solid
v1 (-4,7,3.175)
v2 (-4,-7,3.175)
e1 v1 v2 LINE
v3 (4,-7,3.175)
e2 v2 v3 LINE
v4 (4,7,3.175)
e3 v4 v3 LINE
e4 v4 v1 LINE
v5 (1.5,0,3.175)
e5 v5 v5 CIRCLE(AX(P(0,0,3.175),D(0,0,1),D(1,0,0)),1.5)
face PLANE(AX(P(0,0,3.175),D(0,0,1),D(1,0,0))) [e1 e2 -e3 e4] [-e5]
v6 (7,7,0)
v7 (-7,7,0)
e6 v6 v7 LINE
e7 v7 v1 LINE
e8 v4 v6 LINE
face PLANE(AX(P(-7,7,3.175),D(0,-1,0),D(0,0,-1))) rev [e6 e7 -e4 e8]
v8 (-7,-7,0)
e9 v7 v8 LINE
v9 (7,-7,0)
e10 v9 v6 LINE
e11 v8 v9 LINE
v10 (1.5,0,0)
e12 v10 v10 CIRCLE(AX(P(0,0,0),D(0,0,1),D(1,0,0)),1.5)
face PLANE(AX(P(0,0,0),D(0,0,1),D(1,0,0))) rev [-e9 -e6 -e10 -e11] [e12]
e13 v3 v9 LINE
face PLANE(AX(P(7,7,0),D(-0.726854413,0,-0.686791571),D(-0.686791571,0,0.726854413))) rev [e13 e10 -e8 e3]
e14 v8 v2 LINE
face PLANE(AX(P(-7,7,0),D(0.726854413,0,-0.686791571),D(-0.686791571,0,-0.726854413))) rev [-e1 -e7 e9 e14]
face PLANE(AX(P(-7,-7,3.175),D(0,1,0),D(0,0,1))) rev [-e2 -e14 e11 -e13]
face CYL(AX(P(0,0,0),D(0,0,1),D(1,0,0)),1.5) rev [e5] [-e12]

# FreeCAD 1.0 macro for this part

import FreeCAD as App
import Part
import Sketcher
from FreeCAD import Vector


def add_polygon(sketch, points):
    """Adds a closed chain of lines whose ends are joined by coincident constraints."""
    first, n = sketch.GeometryCount, len(points)
    for a, b in zip(points, points[1:] + points[:1]):
        sketch.addGeometry(Part.LineSegment(App.Vector(*a, 0), App.Vector(*b, 0)), False)
    for i in range(n):
        sketch.addConstraint(Sketcher.Constraint("Coincident", first + i, 2, first + (i + 1) % n, 1))

doc = App.newDocument("Part")
params = doc.addObject("Spreadsheet::Sheet", "Params")
for row, (alias, value) in enumerate([
    ("sketch1_width", "14 mm"),
    ("pad1_length", "3.175 mm"),
    ("sketch2_width", "3 mm"),
    ("sketch3_diameter", "3 mm"),
], start=1):
    params.set(f"A{row}", alias)
    params.set(f"B{row}", "=" + value)
    params.setAlias(f"B{row}", alias)

body = doc.addObject("PartDesign::Body", "Body")

# Sketch on XY plane
sketch1 = body.newObject("Sketcher::SketchObject", "Sketch")
sketch1.AttachmentSupport = (doc.getObject("XY_Plane"), [""])
sketch1.MapMode = "FlatFace"
add_polygon(sketch1, [(-7, 7), (-7, -7), (7, -7), (7, 7)])  # lines 0-3
sketch1.addConstraint([
    Sketcher.Constraint("Vertical", 0),
    Sketcher.Constraint("Horizontal", 1),
    Sketcher.Constraint("Vertical", 2),
    Sketcher.Constraint("Horizontal", 3),
    Sketcher.Constraint("Symmetric", 0, 2, 2, 2, -1, 1),
    Sketcher.Constraint("Equal", 3, 0),
    Sketcher.Constraint("DistanceX", 1, 1, 1, 2, 14.0),
])
sketch1.setExpression("Constraints[10]", "Params.sketch1_width")
pad1 = body.newObject("PartDesign::Pad", "Pad")
pad1.Profile = sketch1
pad1.setExpression("Length", "Params.pad1_length")

# Sketch on XZ plane
sketch2 = body.newObject("Sketcher::SketchObject", "Sketch001")
sketch2.AttachmentSupport = (doc.getObject("XZ_Plane"), [""])
sketch2.MapMode = "FlatFace"
sketch2.AttachmentOffset = App.Placement(Vector(0, 0, 7), App.Rotation())
add_polygon(sketch2, [(-4, 3.2), (-7, 3.2), (-7, 0)])  # lines 0-2
add_polygon(sketch2, [(7, 3.2), (4, 3.2), (7, 0)])  # lines 3-5
sketch2.addConstraint([
    Sketcher.Constraint("Horizontal", 0),
    Sketcher.Constraint("Vertical", 1),
    Sketcher.Constraint("Horizontal", 3),
    Sketcher.Constraint("Vertical", 5),
    Sketcher.Constraint("Symmetric", 1, 2, 4, 2, -1, 1),
    Sketcher.Constraint("Symmetric", 2, 2, 3, 2, -2),
    Sketcher.Constraint("PointOnObject", 1, 2, -1),
    Sketcher.Constraint("DistanceX", 0, 2, 0, 1, 3.0),
    Sketcher.Constraint("DistanceX", 0, 2, -1, 1, 7.0),
    Sketcher.Constraint("DistanceY", 1, 2, 1, 1, 3.175),
])
sketch2.setExpression("Constraints[13]", "Params.sketch2_width")
pocket1 = body.newObject("PartDesign::Pocket", "Pocket")
pocket1.Profile = sketch2
pocket1.Type = "ThroughAll"

# Sketch on XY plane
sketch3 = body.newObject("Sketcher::SketchObject", "Sketch002")
sketch3.AttachmentSupport = (doc.getObject("XY_Plane"), [""])
sketch3.MapMode = "FlatFace"
sketch3.AttachmentOffset = App.Placement(Vector(0, 0, 3.175), App.Rotation())
sketch3.addGeometry(Part.Circle(Vector(0, 0, 0), Vector(0, 0, 1), 1.5), False)
sketch3.addConstraint([
    Sketcher.Constraint("Coincident", 0, 3, -1, 1),
    Sketcher.Constraint("Diameter", 0, 3.0),
])
sketch3.setExpression("Constraints[1]", "Params.sketch3_diameter")
pocket2 = body.newObject("PartDesign::Pocket", "Pocket001")
pocket2.Profile = sketch3
pocket2.Type = "ThroughAll"

doc.recompute()
